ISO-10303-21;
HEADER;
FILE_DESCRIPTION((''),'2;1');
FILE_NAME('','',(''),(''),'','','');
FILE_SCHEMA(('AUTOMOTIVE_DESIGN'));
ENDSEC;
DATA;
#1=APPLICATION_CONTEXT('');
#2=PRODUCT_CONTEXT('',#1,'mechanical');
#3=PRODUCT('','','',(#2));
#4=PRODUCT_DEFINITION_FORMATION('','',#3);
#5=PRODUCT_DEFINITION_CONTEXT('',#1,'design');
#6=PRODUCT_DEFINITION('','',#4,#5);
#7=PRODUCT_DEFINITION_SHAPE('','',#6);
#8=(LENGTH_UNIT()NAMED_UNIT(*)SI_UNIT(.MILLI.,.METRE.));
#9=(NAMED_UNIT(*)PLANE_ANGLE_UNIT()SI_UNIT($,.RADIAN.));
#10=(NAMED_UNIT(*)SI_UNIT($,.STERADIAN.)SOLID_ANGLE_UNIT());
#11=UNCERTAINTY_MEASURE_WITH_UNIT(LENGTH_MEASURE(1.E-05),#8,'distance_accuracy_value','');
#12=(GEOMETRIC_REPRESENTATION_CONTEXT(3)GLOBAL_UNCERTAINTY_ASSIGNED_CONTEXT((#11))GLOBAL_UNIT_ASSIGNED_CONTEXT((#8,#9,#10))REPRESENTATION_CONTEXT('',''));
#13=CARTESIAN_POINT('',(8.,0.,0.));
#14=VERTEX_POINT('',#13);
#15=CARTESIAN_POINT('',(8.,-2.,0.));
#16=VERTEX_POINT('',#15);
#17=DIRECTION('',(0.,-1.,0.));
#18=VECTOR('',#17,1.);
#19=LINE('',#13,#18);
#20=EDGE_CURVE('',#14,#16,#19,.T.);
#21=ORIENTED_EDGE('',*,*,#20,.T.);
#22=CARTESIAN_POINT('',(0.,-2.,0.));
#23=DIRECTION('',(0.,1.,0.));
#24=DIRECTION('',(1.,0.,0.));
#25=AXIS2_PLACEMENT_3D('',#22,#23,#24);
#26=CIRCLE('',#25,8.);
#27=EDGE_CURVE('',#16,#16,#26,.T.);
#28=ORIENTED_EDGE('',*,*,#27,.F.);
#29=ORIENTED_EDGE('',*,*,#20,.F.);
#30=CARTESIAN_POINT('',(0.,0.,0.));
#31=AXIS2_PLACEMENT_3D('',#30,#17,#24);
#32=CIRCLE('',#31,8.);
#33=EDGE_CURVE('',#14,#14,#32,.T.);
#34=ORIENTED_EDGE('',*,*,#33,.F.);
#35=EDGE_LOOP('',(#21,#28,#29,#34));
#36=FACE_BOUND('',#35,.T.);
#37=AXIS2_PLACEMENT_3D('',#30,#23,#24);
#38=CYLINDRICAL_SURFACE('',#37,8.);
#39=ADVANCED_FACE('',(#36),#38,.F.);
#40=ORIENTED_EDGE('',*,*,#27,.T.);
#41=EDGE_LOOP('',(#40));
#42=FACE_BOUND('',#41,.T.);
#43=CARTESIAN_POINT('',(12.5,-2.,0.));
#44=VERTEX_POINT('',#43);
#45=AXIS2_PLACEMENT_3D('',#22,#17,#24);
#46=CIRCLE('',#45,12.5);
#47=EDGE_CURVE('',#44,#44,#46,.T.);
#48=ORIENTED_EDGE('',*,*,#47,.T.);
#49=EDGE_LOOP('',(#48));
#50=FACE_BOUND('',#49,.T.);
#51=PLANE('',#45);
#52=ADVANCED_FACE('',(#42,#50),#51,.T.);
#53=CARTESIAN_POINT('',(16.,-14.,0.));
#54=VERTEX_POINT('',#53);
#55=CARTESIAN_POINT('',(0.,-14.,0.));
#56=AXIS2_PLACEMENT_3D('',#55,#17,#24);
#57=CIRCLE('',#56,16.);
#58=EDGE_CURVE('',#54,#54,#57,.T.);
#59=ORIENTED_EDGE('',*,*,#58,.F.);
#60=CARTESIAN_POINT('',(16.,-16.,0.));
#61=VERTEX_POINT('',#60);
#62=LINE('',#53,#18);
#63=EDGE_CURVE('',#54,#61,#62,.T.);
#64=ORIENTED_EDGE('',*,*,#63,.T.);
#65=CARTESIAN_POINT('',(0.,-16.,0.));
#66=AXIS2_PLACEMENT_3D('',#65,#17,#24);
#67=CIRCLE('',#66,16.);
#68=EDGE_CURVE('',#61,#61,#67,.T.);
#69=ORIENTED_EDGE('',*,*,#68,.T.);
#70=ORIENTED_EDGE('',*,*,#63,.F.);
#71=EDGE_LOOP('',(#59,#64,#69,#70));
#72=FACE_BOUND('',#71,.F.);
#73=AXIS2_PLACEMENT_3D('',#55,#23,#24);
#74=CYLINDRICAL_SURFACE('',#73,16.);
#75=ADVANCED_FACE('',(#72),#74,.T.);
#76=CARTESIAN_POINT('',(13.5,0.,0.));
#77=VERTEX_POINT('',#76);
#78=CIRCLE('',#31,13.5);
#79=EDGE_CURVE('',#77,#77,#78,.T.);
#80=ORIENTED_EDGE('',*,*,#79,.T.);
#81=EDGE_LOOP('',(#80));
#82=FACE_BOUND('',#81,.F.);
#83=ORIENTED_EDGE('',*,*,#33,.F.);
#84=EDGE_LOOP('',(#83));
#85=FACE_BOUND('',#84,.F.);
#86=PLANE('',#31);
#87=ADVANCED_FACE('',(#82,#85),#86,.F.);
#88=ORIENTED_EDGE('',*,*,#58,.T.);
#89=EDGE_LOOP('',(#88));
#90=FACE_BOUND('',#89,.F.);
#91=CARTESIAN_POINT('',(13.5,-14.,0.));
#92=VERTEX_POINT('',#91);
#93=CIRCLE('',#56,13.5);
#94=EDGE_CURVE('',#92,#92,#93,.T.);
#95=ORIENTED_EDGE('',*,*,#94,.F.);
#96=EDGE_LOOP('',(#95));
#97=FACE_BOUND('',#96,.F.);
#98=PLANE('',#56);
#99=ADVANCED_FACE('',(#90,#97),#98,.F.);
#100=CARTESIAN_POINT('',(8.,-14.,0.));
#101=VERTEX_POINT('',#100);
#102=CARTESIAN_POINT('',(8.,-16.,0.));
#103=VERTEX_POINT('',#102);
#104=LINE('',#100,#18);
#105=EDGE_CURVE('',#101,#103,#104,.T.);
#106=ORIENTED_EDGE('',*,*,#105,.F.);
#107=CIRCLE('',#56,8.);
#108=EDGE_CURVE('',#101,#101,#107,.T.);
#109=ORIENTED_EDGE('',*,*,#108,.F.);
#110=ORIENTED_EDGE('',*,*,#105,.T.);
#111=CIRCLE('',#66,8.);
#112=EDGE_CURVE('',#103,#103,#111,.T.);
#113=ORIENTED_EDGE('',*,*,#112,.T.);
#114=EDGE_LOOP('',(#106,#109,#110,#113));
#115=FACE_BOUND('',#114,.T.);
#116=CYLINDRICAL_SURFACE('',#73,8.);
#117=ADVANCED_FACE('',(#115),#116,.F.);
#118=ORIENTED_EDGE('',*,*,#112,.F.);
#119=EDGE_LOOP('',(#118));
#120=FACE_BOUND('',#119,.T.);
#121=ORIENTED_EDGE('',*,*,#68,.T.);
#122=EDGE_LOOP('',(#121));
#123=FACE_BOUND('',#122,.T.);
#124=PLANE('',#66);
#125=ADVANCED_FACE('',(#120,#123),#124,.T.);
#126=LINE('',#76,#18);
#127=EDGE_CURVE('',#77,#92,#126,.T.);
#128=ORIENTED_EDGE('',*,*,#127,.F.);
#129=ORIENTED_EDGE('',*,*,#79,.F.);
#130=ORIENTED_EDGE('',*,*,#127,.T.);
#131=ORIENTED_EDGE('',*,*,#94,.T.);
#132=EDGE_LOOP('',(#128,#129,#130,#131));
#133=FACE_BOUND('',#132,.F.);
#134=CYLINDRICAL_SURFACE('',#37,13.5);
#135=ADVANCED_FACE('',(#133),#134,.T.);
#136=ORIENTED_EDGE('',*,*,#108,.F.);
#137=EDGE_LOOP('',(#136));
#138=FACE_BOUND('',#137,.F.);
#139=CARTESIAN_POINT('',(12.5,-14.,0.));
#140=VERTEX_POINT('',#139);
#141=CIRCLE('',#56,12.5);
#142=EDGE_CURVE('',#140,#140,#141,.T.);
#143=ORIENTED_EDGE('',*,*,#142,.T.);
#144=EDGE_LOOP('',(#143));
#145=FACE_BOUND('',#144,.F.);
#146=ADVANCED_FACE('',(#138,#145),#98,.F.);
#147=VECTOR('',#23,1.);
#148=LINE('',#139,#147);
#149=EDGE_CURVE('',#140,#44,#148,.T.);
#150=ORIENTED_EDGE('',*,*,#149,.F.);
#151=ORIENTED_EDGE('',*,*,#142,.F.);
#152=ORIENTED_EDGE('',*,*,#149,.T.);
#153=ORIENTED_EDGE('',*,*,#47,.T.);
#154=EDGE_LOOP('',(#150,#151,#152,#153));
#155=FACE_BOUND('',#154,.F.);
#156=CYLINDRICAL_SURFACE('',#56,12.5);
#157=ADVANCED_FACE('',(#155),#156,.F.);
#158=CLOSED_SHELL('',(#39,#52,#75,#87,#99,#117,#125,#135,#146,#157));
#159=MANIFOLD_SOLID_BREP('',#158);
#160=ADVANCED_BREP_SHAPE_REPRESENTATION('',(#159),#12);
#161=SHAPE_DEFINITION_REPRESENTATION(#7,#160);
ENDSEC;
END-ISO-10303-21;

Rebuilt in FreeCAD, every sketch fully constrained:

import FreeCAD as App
import Part
import Sketcher

V = App.Vector

doc = App.newDocument("Part")
body = doc.addObject("PartDesign::Body", "Body")

# Sketch on XZ plane
sketch1 = body.newObject("Sketcher::SketchObject", "Sketch")
sketch1.AttachmentSupport = (doc.getObject("XZ_Plane"), [""])
sketch1.MapMode = "FlatFace"
sketch1.addGeometry([
    Part.Circle(V(0, 0, 0), V(0, 0, 1), 13.5),
    Part.Circle(V(0, 0, 0), V(0, 0, 1), 8),
], False)
sketch1.addConstraint([
    Sketcher.Constraint("Coincident", 0, 3, -1, 1),
    Sketcher.Constraint("Coincident", 1, 3, -1, 1),
    Sketcher.Constraint("Diameter", 0, 27.0),
    Sketcher.Constraint("Diameter", 1, 16.0),
])
pad1 = body.newObject("PartDesign::Pad", "Pad")
pad1.Profile = sketch1
pad1.Length = 14

# Sketch on XZ plane
sketch2 = body.newObject("Sketcher::SketchObject", "Sketch001")
sketch2.AttachmentSupport = (doc.getObject("XZ_Plane"), [""])
sketch2.MapMode = "FlatFace"
sketch2.AttachmentOffset = App.Placement(V(0, 0, 14), App.Rotation())
sketch2.addGeometry(Part.Circle(V(0, 0, 0), V(0, 0, 1), 12.5), False)
sketch2.addConstraint([
    Sketcher.Constraint("Coincident", 0, 3, -1, 1),
    Sketcher.Constraint("Diameter", 0, 25.0),
])
pocket1 = body.newObject("PartDesign::Pocket", "Pocket")
pocket1.Profile = sketch2
pocket1.Length = 12

# Sketch on XZ plane
sketch3 = body.newObject("Sketcher::SketchObject", "Sketch002")
sketch3.AttachmentSupport = (doc.getObject("XZ_Plane"), [""])
sketch3.MapMode = "FlatFace"
sketch3.AttachmentOffset = App.Placement(V(0, 0, 14), App.Rotation())
sketch3.addGeometry([
    Part.Circle(V(0, 0, 0), V(0, 0, 1), 16),
    Part.Circle(V(0, 0, 0), V(0, 0, 1), 8),
], False)
sketch3.addConstraint([
    Sketcher.Constraint("Coincident", 0, 3, -1, 1),
    Sketcher.Constraint("Coincident", 1, 3, -1, 1),
    Sketcher.Constraint("Diameter", 0, 32.0),
    Sketcher.Constraint("Diameter", 1, 16.0),
])
pad2 = body.newObject("PartDesign::Pad", "Pad001")
pad2.Profile = sketch3
pad2.Length = 2

doc.recompute()
